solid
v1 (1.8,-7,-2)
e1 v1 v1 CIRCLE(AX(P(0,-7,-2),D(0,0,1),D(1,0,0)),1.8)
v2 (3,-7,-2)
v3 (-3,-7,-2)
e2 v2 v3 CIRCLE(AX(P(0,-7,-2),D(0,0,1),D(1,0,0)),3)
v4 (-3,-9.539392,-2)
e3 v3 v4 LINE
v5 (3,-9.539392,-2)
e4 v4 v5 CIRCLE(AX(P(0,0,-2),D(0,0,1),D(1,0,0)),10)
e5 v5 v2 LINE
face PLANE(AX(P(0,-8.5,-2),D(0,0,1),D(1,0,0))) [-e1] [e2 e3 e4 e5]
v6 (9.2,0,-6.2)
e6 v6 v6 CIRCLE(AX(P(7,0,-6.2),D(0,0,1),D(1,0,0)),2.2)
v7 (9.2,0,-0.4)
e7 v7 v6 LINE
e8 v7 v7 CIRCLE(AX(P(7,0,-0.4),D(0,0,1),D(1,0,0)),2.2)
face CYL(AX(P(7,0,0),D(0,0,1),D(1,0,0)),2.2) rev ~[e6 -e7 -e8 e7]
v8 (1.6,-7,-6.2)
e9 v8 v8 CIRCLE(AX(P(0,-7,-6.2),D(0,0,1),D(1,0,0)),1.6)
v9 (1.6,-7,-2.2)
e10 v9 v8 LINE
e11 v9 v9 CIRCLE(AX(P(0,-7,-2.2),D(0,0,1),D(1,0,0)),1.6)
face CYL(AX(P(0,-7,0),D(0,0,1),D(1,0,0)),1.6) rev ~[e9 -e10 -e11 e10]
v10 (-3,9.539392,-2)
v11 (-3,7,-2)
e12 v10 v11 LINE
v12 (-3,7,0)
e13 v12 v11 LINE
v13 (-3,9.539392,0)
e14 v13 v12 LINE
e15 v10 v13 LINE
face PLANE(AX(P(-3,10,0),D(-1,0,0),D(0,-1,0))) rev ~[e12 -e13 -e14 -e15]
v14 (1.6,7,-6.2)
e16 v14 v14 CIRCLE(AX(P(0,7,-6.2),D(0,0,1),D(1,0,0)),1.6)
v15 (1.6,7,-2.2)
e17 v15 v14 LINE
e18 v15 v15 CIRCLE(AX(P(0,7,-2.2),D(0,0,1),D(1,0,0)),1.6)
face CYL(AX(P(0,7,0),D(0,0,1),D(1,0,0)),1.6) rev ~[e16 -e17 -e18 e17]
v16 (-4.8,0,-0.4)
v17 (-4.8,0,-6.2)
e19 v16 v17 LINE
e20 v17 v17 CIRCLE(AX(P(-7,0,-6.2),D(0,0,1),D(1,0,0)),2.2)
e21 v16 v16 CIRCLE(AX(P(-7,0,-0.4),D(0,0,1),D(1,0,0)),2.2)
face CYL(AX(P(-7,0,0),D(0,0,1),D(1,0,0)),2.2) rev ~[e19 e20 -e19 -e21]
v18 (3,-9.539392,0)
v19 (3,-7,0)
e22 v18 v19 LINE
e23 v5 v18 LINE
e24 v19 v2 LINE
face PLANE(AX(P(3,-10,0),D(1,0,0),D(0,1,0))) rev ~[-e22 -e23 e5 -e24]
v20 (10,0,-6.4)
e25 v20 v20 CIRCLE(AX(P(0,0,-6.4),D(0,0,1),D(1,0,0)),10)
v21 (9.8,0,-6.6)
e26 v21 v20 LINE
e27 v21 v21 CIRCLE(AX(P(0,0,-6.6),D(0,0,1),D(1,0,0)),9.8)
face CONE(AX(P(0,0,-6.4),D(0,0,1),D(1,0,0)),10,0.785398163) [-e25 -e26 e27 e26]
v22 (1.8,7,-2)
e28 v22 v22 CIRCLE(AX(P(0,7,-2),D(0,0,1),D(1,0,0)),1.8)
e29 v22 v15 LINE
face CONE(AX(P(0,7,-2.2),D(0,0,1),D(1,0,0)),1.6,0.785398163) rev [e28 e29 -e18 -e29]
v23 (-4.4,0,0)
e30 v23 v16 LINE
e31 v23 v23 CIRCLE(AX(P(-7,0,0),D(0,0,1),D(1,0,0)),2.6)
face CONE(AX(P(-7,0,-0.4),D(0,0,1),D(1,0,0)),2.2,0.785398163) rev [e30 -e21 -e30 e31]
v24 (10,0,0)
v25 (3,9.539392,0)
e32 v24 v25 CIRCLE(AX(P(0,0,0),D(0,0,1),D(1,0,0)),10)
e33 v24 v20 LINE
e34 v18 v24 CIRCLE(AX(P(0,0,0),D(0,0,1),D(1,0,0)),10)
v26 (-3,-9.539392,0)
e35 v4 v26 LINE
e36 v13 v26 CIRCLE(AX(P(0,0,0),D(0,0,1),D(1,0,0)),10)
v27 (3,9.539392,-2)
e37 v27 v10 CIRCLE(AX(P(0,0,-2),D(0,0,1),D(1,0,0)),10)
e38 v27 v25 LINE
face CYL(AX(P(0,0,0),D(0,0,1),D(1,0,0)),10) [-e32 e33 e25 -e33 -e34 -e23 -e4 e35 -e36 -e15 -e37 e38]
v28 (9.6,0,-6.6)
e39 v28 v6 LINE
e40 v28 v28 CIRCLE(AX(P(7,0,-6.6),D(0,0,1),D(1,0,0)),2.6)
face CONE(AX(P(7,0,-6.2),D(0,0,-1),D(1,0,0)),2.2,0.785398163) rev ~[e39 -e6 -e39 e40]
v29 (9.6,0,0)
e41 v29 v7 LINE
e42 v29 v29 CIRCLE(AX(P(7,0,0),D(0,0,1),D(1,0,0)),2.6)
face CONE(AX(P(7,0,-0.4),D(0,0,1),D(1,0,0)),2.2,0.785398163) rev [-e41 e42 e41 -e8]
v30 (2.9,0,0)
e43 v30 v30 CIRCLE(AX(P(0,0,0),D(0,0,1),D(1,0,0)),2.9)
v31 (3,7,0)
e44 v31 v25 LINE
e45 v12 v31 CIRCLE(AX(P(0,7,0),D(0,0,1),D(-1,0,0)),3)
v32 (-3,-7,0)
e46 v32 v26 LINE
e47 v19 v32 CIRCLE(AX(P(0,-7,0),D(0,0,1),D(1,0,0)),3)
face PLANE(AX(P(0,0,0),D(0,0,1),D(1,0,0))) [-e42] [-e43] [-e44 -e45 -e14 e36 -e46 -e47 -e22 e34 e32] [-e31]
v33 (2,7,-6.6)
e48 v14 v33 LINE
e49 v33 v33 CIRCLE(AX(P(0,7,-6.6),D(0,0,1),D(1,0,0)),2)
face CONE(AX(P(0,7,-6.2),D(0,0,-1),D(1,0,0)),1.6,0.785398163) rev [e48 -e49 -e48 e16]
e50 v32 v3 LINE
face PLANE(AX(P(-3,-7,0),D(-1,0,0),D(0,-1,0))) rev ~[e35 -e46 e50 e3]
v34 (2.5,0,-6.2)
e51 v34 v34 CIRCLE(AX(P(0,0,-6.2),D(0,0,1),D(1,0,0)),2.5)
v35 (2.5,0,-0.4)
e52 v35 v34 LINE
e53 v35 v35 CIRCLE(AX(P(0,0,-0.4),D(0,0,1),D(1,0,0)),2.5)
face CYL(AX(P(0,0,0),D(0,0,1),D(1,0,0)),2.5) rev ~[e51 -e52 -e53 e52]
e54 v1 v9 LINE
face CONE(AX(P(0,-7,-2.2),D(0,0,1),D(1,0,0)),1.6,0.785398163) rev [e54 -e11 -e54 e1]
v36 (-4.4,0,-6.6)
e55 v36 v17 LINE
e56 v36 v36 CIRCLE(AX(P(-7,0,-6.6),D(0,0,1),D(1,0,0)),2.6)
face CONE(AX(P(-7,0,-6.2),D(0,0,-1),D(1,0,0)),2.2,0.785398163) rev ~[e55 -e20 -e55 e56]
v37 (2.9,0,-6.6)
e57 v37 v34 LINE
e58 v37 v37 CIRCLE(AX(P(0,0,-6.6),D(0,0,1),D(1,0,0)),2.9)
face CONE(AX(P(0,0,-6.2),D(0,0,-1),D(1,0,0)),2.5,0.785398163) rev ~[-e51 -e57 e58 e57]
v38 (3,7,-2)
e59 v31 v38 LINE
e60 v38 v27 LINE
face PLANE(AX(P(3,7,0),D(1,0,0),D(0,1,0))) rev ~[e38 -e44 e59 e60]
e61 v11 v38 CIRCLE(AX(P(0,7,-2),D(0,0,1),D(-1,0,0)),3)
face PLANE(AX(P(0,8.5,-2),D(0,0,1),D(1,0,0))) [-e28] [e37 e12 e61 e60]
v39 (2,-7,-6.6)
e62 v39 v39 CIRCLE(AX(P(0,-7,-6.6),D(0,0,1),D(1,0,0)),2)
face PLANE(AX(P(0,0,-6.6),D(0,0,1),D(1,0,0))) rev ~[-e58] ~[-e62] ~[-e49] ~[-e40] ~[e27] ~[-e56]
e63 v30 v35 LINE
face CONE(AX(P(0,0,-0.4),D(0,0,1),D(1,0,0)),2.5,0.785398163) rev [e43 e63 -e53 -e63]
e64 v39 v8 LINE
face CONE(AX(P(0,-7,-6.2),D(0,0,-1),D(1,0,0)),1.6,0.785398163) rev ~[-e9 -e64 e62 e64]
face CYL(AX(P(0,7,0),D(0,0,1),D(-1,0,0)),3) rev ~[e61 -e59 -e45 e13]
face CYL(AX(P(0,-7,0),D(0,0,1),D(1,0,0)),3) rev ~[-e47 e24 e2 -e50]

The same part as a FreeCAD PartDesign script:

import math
import FreeCAD as App
import Part
import Sketcher
Q = App.Units.Quantity


def edges_at(feature, points):
    """Names of the edges that pass closest to the given points."""
    edges = feature.Shape.Edges
    near = lambda p: min(range(len(edges)), key=lambda i: edges[i].distToShape(Part.Vertex(*p))[0])
    return sorted({f"Edge{near(p) + 1}" for p in points})

doc = App.newDocument("Part")
body = doc.addObject("PartDesign::Body", "Body")

# Sketch on XY plane
sketch1 = body.newObject("Sketcher::SketchObject", "Sketch")
sketch1.AttachmentSupport = (doc.getObject("XY_Plane"), [""])
sketch1.MapMode = "FlatFace"
sketch1.addGeometry([
    Part.Circle(App.Vector(0, 0, 0), App.Vector(0, 0, 1), 10),  # 0
    Part.Circle(App.Vector(0, -7, 0), App.Vector(0, 0, 1), 1.6),  # 1
    Part.Circle(App.Vector(-7, 0, 0), App.Vector(0, 0, 1), 2.2),  # 2
    Part.Circle(App.Vector(0, 0, 0), App.Vector(0, 0, 1), 2.5),  # 3
    Part.Circle(App.Vector(7, 0, 0), App.Vector(0, 0, 1), 2.2),  # 4
    Part.Circle(App.Vector(0, 7, 0), App.Vector(0, 0, 1), 1.6),  # 5
], False)
sketch1.addConstraint([
    Sketcher.Constraint("Coincident", 0, 3, -1, 1),
    Sketcher.Constraint("Coincident", 3, 3, -1, 1),
    Sketcher.Constraint("Equal", 2, 4),
    Sketcher.Constraint("Equal", 1, 5),
    Sketcher.Constraint("Symmetric", 2, 3, 4, 3, -1, 1),
    Sketcher.Constraint("Symmetric", 1, 3, 5, 3, -1, 1),
    Sketcher.Constraint("PointOnObject", 1, 3, -2),
    Sketcher.Constraint("PointOnObject", 2, 3, -1),
    Sketcher.Constraint("Diameter", 0, Q("20 mm")),
    Sketcher.Constraint("Diameter", 3, Q("5 mm")),
    Sketcher.Constraint("Diameter", 1, Q("3.2 mm")),
    Sketcher.Constraint("Diameter", 2, Q("4.4 mm")),
    Sketcher.Constraint("DistanceY", 1, 3, -1, 1, Q("7 mm")),
    Sketcher.Constraint("DistanceX", 2, 3, -1, 1, Q("7 mm")),
])
pad1 = body.newObject("PartDesign::Pad", "Pad")
pad1.Profile = sketch1
pad1.Length = 6.6
pad1.Reversed = True

# Sketch on XY plane
sketch2 = body.newObject("Sketcher::SketchObject", "Sketch001")
sketch2.AttachmentSupport = (doc.getObject("XY_Plane"), [""])
sketch2.MapMode = "FlatFace"
sketch2.addGeometry([
    Part.ArcOfCircle(Part.Circle(App.Vector(0, 7, 0), App.Vector(0, 0, 1), 3), math.radians(180), math.radians(360)),  # 0
    Part.LineSegment(App.Vector(3, 7, 0), App.Vector(3, 10, 0)),  # 1
    Part.ArcOfCircle(Part.Circle(App.Vector(0, 10, 0), App.Vector(0, 0, 1), 3), math.radians(0), math.radians(180)),  # 2
    Part.LineSegment(App.Vector(-3, 10, 0), App.Vector(-3, 7, 0)),  # 3
    Part.ArcOfCircle(Part.Circle(App.Vector(0, -7, 0), App.Vector(0, 0, 1), 3), math.radians(0), math.radians(180)),  # 4
    Part.LineSegment(App.Vector(-3, -7, 0), App.Vector(-3, -10, 0)),  # 5
    Part.ArcOfCircle(Part.Circle(App.Vector(0, -10, 0), App.Vector(0, 0, 1), 3), math.radians(180), math.radians(360)),  # 6
    Part.LineSegment(App.Vector(3, -10, 0), App.Vector(3, -7, 0)),  # 7
], False)
sketch2.addConstraint([
    Sketcher.Constraint("Tangent", 0, 2, 1, 1),
    Sketcher.Constraint("Tangent", 1, 2, 2, 1),
    Sketcher.Constraint("Tangent", 2, 2, 3, 1),
    Sketcher.Constraint("Tangent", 3, 2, 0, 1),
    Sketcher.Constraint("Tangent", 4, 2, 5, 1),
    Sketcher.Constraint("Tangent", 5, 2, 6, 1),
    Sketcher.Constraint("Tangent", 6, 2, 7, 1),
    Sketcher.Constraint("Tangent", 7, 2, 4, 1),
    Sketcher.Constraint("Vertical", 1),
    Sketcher.Constraint("Vertical", 3),
    Sketcher.Constraint("Vertical", 5),
    Sketcher.Constraint("Vertical", 7),
    Sketcher.Constraint("Equal", 2, 4),
    Sketcher.Constraint("Symmetric", 0, 3, 4, 3, -1, 1),
    Sketcher.Constraint("Symmetric", 2, 3, 6, 3, -1),
    Sketcher.Constraint("Radius", 0, Q("3 mm")),
    Sketcher.Constraint("DistanceY", 1, 1, 1, 2, Q("3 mm")),
    Sketcher.Constraint("DistanceY", -1, 1, 0, 3, Q("7 mm")),
])
pocket1 = body.newObject("PartDesign::Pocket", "Pocket")
pocket1.Profile = sketch2
pocket1.Length = 2
doc.recompute()

chamfer = body.newObject("PartDesign::Chamfer", "Chamfer")
chamfer.Base = (pocket1, edges_at(pocket1, [(-1.6, 7, -2), (-1.6, -7, -2)]))
chamfer.Size = 0.2
doc.recompute()

chamfer2 = body.newObject("PartDesign::Chamfer", "Chamfer001")
chamfer2.Base = (chamfer, edges_at(chamfer, [
    (4.8, 0, 0),
    (-9.2, 0, 0),
    (-2.5, 0, 0),
    (-1.6, 7, -6.6),
    (-2.5, 0, -6.6),
    (4.8, 0, -6.6),
    (-1.6, -7, -6.6),
    (-9.2, 0, -6.6),
]))
chamfer2.Size = 0.4
doc.recompute()

chamfer3 = body.newObject("PartDesign::Chamfer", "Chamfer002")
chamfer3.Base = (chamfer2, edges_at(chamfer2, [(-10, 0, -6.6)]))
chamfer3.Size = 0.2

doc.recompute()
